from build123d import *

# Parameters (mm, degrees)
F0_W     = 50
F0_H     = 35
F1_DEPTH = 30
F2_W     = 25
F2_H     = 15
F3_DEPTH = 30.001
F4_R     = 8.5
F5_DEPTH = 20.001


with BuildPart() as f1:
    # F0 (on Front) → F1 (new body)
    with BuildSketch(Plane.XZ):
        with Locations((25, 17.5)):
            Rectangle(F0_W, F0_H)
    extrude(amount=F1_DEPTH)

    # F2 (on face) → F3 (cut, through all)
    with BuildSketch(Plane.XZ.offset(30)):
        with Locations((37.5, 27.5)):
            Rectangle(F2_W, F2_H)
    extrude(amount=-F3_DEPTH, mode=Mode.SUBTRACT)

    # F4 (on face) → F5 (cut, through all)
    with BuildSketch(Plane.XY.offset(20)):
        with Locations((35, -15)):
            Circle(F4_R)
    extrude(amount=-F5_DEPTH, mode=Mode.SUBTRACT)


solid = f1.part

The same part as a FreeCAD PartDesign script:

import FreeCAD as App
import Part
import Sketcher
from FreeCAD import Vector
Q = App.Units.Quantity


def add_polygon(sketch, points):
    """Adds a closed chain of lines whose ends are joined by coincident constraints."""
    first, n = sketch.GeometryCount, len(points)
    for a, b in zip(points, points[1:] + points[:1]):
        sketch.addGeometry(Part.LineSegment(App.Vector(*a, 0), App.Vector(*b, 0)), False)
    for i in range(n):
        sketch.addConstraint(Sketcher.Constraint("Coincident", first + i, 2, first + (i + 1) % n, 1))

doc = App.newDocument("Part")
body = doc.addObject("PartDesign::Body", "Body")

# Sketch on XZ plane
sketch1 = body.newObject("Sketcher::SketchObject", "Sketch")
sketch1.AttachmentSupport = (doc.getObject("XZ_Plane"), [""])
sketch1.MapMode = "FlatFace"
add_polygon(sketch1, [(0, 35), (0, 0), (50, 0), (50, 35)])  # lines 0-3
sketch1.addConstraint([
    Sketcher.Constraint("Vertical", 0),
    Sketcher.Constraint("Horizontal", 1),
    Sketcher.Constraint("Vertical", 2),
    Sketcher.Constraint("Horizontal", 3),
    Sketcher.Constraint("Coincident", 0, 2, -1, 1),
    Sketcher.Constraint("DistanceX", 1, 1, 1, 2, Q("50 mm")),
    Sketcher.Constraint("DistanceY", 0, 2, 0, 1, Q("35 mm")),
])
pad1 = body.newObject("PartDesign::Pad", "Pad")
pad1.Profile = sketch1
pad1.Length = 30

# Sketch on XZ plane
sketch2 = body.newObject("Sketcher::SketchObject", "Sketch001")
sketch2.AttachmentSupport = (doc.getObject("XZ_Plane"), [""])
sketch2.MapMode = "FlatFace"
sketch2.AttachmentOffset = App.Placement(Vector(0, 0, 30), App.Rotation())
add_polygon(sketch2, [(25, 35), (25, 20), (50, 20), (50, 35)])  # lines 0-3
sketch2.addConstraint([
    Sketcher.Constraint("Vertical", 0),
    Sketcher.Constraint("Horizontal", 1),
    Sketcher.Constraint("Vertical", 2),
    Sketcher.Constraint("Horizontal", 3),
    Sketcher.Constraint("DistanceX", 1, 1, 1, 2, Q("25 mm")),
    Sketcher.Constraint("DistanceY", 0, 2, 0, 1, Q("15 mm")),
    Sketcher.Constraint("DistanceX", -1, 1, 0, 2, Q("25 mm")),
    Sketcher.Constraint("DistanceY", -1, 1, 0, 2, Q("20 mm")),
])
pocket1 = body.newObject("PartDesign::Pocket", "Pocket")
pocket1.Profile = sketch2
pocket1.Type = "ThroughAll"

# Sketch on XY plane
sketch3 = body.newObject("Sketcher::SketchObject", "Sketch002")
sketch3.AttachmentSupport = (doc.getObject("XY_Plane"), [""])
sketch3.MapMode = "FlatFace"
sketch3.AttachmentOffset = App.Placement(Vector(0, 0, 20), App.Rotation())
sketch3.addGeometry(Part.Circle(Vector(35, -15, 0), Vector(0, 0, 1), 8), False)
sketch3.addConstraint([
    Sketcher.Constraint("Diameter", 0, Q("17 mm")),
    Sketcher.Constraint("DistanceX", -1, 1, 0, 3, Q("35 mm")),
    Sketcher.Constraint("DistanceY", 0, 3, -1, 1, Q("15 mm")),
])
pocket2 = body.newObject("PartDesign::Pocket", "Pocket001")
pocket2.Profile = sketch3
pocket2.Type = "ThroughAll"

doc.recompute()
